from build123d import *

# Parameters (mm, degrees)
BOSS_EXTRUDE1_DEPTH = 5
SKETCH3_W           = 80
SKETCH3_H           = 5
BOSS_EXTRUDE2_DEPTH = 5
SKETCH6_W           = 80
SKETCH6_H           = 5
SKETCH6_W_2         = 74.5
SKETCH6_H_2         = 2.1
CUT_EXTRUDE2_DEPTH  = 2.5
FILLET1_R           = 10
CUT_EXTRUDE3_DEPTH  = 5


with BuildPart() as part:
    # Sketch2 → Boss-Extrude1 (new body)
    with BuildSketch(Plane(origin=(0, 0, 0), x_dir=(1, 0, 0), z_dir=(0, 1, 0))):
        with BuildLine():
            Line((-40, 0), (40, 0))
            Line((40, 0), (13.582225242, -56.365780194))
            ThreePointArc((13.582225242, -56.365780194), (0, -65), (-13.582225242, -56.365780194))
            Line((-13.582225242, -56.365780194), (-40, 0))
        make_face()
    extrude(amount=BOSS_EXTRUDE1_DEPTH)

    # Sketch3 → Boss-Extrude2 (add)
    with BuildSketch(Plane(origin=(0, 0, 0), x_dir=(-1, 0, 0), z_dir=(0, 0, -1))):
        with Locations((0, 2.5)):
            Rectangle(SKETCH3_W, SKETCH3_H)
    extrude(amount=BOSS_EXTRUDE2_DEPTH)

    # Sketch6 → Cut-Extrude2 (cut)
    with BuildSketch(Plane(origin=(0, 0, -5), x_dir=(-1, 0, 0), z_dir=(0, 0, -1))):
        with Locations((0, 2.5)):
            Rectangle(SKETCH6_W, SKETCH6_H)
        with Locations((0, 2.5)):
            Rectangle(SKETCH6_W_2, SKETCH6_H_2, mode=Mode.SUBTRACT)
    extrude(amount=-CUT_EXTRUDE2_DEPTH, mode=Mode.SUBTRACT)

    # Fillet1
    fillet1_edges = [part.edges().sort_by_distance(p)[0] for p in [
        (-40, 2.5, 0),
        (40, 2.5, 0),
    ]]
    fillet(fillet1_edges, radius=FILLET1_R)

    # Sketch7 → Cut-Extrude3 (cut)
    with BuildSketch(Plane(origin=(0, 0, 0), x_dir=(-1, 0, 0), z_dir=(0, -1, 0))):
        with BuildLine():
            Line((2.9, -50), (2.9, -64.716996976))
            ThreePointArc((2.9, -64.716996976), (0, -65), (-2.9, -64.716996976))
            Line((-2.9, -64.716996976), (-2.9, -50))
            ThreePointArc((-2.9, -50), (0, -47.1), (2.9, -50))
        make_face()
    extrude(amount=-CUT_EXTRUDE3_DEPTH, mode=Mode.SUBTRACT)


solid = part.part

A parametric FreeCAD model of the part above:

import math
import FreeCAD as App
import Part
import Sketcher
Q = App.Units.Quantity


def edges_at(feature, points):
    """Names of the edges that pass closest to the given points."""
    edges = feature.Shape.Edges
    near = lambda p: min(range(len(edges)), key=lambda i: edges[i].distToShape(Part.Vertex(*p))[0])
    return sorted({f"Edge{near(p) + 1}" for p in points})


def add_polygon(sketch, points):
    """Adds a closed chain of lines whose ends are joined by coincident constraints."""
    first, n = sketch.GeometryCount, len(points)
    for a, b in zip(points, points[1:] + points[:1]):
        sketch.addGeometry(Part.LineSegment(App.Vector(*a, 0), App.Vector(*b, 0)), False)
    for i in range(n):
        sketch.addConstraint(Sketcher.Constraint("Coincident", first + i, 2, first + (i + 1) % n, 1))

doc = App.newDocument("Part")
body = doc.addObject("PartDesign::Body", "Body")

# Sketch on XZ plane
sketch1 = body.newObject("Sketcher::SketchObject", "Sketch")
sketch1.AttachmentSupport = (doc.getObject("XZ_Plane"), [""])
sketch1.MapMode = "FlatFace"
sketch1.addGeometry([
    Part.LineSegment(App.Vector(40, 0, 0), App.Vector(-40, 0, 0)),
    Part.LineSegment(App.Vector(-40, 0, 0), App.Vector(-14, 56, 0)),
    Part.ArcOfCircle(Part.Circle(App.Vector(0, 50, 0), App.Vector(0, 0, 1), 15), math.radians(25), math.radians(155)),
    Part.LineSegment(App.Vector(14, 56, 0), App.Vector(40, 0, 0)),
], False)
sketch1.addConstraint([
    Sketcher.Constraint("Coincident", 0, 2, 1, 1),
    Sketcher.Constraint("Tangent", 1, 2, 2, 2),
    Sketcher.Constraint("Tangent", 2, 1, 3, 1),
    Sketcher.Constraint("Coincident", 3, 2, 0, 1),
    Sketcher.Constraint("Horizontal", 0),
    Sketcher.Constraint("Symmetric", 0, 2, 3, 2, -1, 1),
    Sketcher.Constraint("PointOnObject", 2, 3, -2),
    Sketcher.Constraint("Radius", 2, Q("15 mm")),
    Sketcher.Constraint("DistanceX", 0, 2, 0, 1, Q("80 mm")),
    Sketcher.Constraint("DistanceY", -1, 1, 2, 3, Q("50 mm")),
])
pad1 = body.newObject("PartDesign::Pad", "Pad")
pad1.Profile = sketch1
pad1.Length = 5
pad1.Reversed = True

# Sketch on XY plane
sketch2 = body.newObject("Sketcher::SketchObject", "Sketch001")
sketch2.AttachmentSupport = (doc.getObject("XY_Plane"), [""])
sketch2.MapMode = "FlatFace"
add_polygon(sketch2, [(40, 5), (40, 0), (-40, 0), (-40, 5)])  # lines 0-3
sketch2.addConstraint([
    Sketcher.Constraint("Vertical", 0),
    Sketcher.Constraint("Horizontal", 1),
    Sketcher.Constraint("Vertical", 2),
    Sketcher.Constraint("Horizontal", 3),
    Sketcher.Constraint("Symmetric", 0, 2, 1, 2, -1, 1),
    Sketcher.Constraint("DistanceX", 1, 2, 1, 1, Q("80 mm")),
    Sketcher.Constraint("DistanceY", 0, 2, 0, 1, Q("5 mm")),
])
pad2 = body.newObject("PartDesign::Pad", "Pad001")
pad2.Profile = sketch2
pad2.Length = 5
pad2.Reversed = True

# Sketch on XY plane
sketch3 = body.newObject("Sketcher::SketchObject", "Sketch002")
sketch3.AttachmentSupport = (doc.getObject("XY_Plane"), [""])
sketch3.MapMode = "FlatFace"
sketch3.AttachmentOffset = App.Placement(App.Vector(0, 0, -5), App.Rotation())
add_polygon(sketch3, [(40, 5), (40, 0), (-40, 0), (-40, 5)])  # lines 0-3
add_polygon(sketch3, [(-37.2, 1.4), (37.2, 1.4), (37.2, 3.5), (-37.2, 3.5)])  # lines 4-7
sketch3.addConstraint([
    Sketcher.Constraint("Vertical", 0),
    Sketcher.Constraint("Horizontal", 1),
    Sketcher.Constraint("Vertical", 2),
    Sketcher.Constraint("Horizontal", 3),
    Sketcher.Constraint("Horizontal", 4),
    Sketcher.Constraint("Vertical", 5),
    Sketcher.Constraint("Horizontal", 6),
    Sketcher.Constraint("Vertical", 7),
    Sketcher.Constraint("Symmetric", 0, 2, 1, 2, -1, 1),
    Sketcher.Constraint("DistanceX", 1, 2, 1, 1, Q("80 mm")),
    Sketcher.Constraint("DistanceY", 0, 2, 0, 1, Q("5 mm")),
    Sketcher.Constraint("DistanceX", 4, 1, 4, 2, Q("74.5 mm")),
    Sketcher.Constraint("DistanceY", 5, 1, 5, 2, Q("2.1 mm")),
    Sketcher.Constraint("DistanceX", -1, 1, 4, 2, Q("37.25 mm")),
    Sketcher.Constraint("DistanceY", -1, 1, 4, 2, Q("1.45 mm")),
])
pocket1 = body.newObject("PartDesign::Pocket", "Pocket")
pocket1.Profile = sketch3
pocket1.Length = 2.5
pocket1.Reversed = True
doc.recompute()

fillet = body.newObject("PartDesign::Fillet", "Fillet")
fillet.Base = (pocket1, edges_at(pocket1, [(-40, 2.5, 0), (40, 2.5, 0)]))
fillet.Radius = 10

# Sketch on XZ plane
sketch4 = body.newObject("Sketcher::SketchObject", "Sketch003")
sketch4.AttachmentSupport = (doc.getObject("XZ_Plane"), [""])
sketch4.MapMode = "FlatFace"
sketch4.addGeometry([
    Part.LineSegment(App.Vector(-2.9, 64.7, 0), App.Vector(-2.9, 50, 0)),
    Part.ArcOfCircle(Part.Circle(App.Vector(0, 50, 0), App.Vector(0, 0, 1), 2.9), math.radians(180), math.radians(360)),
    Part.LineSegment(App.Vector(2.9, 50, 0), App.Vector(2.9, 64.7, 0)),
    Part.ArcOfCircle(Part.Circle(App.Vector(0, 50, 0), App.Vector(0, 0, 1), 15), math.radians(79), math.radians(101)),
], False)
sketch4.addConstraint([
    Sketcher.Constraint("Tangent", 0, 2, 1, 1),
    Sketcher.Constraint("Tangent", 1, 2, 2, 1),
    Sketcher.Constraint("Coincident", 2, 2, 3, 1),
    Sketcher.Constraint("Coincident", 3, 2, 0, 1),
    Sketcher.Constraint("Vertical", 0),
    Sketcher.Constraint("Vertical", 2),
    Sketcher.Constraint("Coincident", 3, 3, 1, 3),
    Sketcher.Constraint("PointOnObject", 1, 3, -2),
    Sketcher.Constraint("Radius", 3, Q("15 mm")),
    Sketcher.Constraint("Radius", 1, Q("2.9 mm")),
    Sketcher.Constraint("DistanceY", -1, 1, 1, 3, Q("50 mm")),
])
pocket2 = body.newObject("PartDesign::Pocket", "Pocket001")
pocket2.Profile = sketch4
pocket2.Length = 5

doc.recompute()
